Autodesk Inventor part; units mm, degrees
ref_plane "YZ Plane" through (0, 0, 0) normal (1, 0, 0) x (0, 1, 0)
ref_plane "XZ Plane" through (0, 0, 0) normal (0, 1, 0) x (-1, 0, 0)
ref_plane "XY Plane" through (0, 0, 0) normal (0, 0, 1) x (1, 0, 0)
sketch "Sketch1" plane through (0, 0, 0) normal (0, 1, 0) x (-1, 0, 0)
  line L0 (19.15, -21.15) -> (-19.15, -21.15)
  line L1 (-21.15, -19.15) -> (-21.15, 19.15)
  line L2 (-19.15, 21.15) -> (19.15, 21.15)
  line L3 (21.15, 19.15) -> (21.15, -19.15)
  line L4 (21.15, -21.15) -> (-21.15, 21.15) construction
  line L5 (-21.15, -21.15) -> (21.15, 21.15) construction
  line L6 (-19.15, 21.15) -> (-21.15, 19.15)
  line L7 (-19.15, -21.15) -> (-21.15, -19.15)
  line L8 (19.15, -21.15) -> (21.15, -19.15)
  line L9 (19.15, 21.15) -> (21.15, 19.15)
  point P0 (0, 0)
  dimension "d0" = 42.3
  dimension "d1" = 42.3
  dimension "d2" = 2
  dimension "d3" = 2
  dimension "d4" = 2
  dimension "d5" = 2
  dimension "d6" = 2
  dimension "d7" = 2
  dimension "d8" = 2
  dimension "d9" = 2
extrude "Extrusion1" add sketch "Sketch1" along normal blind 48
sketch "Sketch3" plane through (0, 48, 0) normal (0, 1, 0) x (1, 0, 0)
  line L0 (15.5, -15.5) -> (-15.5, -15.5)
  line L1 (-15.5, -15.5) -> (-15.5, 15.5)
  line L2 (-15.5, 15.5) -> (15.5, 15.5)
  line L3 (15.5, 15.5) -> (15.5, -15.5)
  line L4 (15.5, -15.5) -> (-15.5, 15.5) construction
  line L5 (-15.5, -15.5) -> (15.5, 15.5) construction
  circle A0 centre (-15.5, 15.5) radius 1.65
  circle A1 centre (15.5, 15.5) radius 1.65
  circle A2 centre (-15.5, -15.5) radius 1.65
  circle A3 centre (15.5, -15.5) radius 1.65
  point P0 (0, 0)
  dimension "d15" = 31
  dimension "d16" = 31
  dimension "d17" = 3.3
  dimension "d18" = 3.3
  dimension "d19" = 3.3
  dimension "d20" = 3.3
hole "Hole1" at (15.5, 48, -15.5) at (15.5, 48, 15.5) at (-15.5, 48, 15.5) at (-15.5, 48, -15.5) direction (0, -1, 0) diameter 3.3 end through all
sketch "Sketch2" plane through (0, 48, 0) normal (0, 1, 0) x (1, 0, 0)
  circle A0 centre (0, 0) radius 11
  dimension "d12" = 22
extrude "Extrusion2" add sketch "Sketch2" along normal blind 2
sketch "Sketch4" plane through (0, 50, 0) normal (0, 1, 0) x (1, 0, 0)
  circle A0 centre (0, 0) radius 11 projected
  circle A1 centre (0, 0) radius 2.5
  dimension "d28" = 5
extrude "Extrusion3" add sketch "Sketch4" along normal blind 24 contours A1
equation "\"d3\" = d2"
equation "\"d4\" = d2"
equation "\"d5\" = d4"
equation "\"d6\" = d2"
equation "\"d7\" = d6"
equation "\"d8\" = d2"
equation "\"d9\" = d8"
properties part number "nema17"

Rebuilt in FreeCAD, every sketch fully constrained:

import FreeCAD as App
import Part
import Sketcher
Q = App.Units.Quantity

doc = App.newDocument("Part")
params = doc.addObject("Spreadsheet::Sheet", "Params")
for row, (alias, value) in enumerate([
    ("pad1_length", "48 mm"),
    ("sketch2_diameter", "3.3 mm"),
    ("hole_diameter", "3.3 mm"),
    ("sketch3_diameter", "22 mm"),
    ("pad2_length", "2 mm"),
    ("sketch4_diameter", "5 mm"),
    ("pad3_length", "24 mm"),
], start=1):
    params.set(f"A{row}", alias)
    params.set(f"B{row}", "=" + value)
    params.setAlias(f"B{row}", alias)

body = doc.addObject("PartDesign::Body", "Body")

sketch1 = doc.addObject("Sketcher::SketchObject", "Sketch")
body.addObject(sketch1)
sketch1.AttachmentSupport = (doc.XZ_Plane, [""])
sketch1.MapMode = "FlatFace"
sketch1.addGeometry([
    Part.LineSegment(App.Vector(19.1, -21.1, 0), App.Vector(-19.1, -21.1, 0)),
    Part.LineSegment(App.Vector(-19.1, -21.1, 0), App.Vector(-21.1, -19.1, 0)),
    Part.LineSegment(App.Vector(-21.1, -19.1, 0), App.Vector(-21.1, 19.1, 0)),
    Part.LineSegment(App.Vector(-21.1, 19.1, 0), App.Vector(-19.1, 21.1, 0)),
    Part.LineSegment(App.Vector(-19.1, 21.1, 0), App.Vector(19.1, 21.1, 0)),
    Part.LineSegment(App.Vector(19.1, 21.1, 0), App.Vector(21.1, 19.1, 0)),
    Part.LineSegment(App.Vector(21.1, 19.1, 0), App.Vector(21.1, -19.1, 0)),
    Part.LineSegment(App.Vector(21.1, -19.1, 0), App.Vector(19.1, -21.1, 0)),
], False)
sketch1.addConstraint([
    Sketcher.Constraint("Coincident", 0, 2, 1, 1),
    Sketcher.Constraint("Coincident", 1, 2, 2, 1),
    Sketcher.Constraint("Coincident", 2, 2, 3, 1),
    Sketcher.Constraint("Coincident", 3, 2, 4, 1),
    Sketcher.Constraint("Coincident", 4, 2, 5, 1),
    Sketcher.Constraint("Coincident", 5, 2, 6, 1),
    Sketcher.Constraint("Coincident", 6, 2, 7, 1),
    Sketcher.Constraint("Coincident", 7, 2, 0, 1),
    Sketcher.Constraint("Horizontal", 0),
    Sketcher.Constraint("Vertical", 2),
    Sketcher.Constraint("Horizontal", 4),
    Sketcher.Constraint("Vertical", 6),
    Sketcher.Constraint("Symmetric", 0, 2, 4, 2, -1, 1),
    Sketcher.Constraint("Symmetric", 1, 2, 5, 2, -1, 1),
    Sketcher.Constraint("Perpendicular", 1, 3),
    Sketcher.Constraint("Perpendicular", 5, 7),
    Sketcher.Constraint("Horizontal", 2, 2, 5, 2),
    Sketcher.Constraint("Horizontal", 1, 2, 6, 2),
    Sketcher.Constraint("Vertical", 0, 2, 3, 2),
    Sketcher.Constraint("Equal", 4, 2),
    Sketcher.Constraint("DistanceX", 1, 2, 0, 2, Q("2 mm")),
    Sketcher.Constraint("DistanceY", 0, 2, 3, 2, Q("42.3 mm")),
])
pad1 = doc.addObject("PartDesign::Pad", "Pad")
body.addObject(pad1)
pad1.Profile = sketch1
pad1.setExpression("Length", "Params.pad1_length")
pad1.Reversed = True

sketch2 = doc.addObject("Sketcher::SketchObject", "Sketch001")
body.addObject(sketch2)
sketch2.AttachmentSupport = (doc.XZ_Plane, [""])
sketch2.MapMode = "FlatFace"
sketch2.AttachmentOffset = App.Placement(App.Vector(0, 0, -48), App.Rotation())
sketch2.addGeometry([
    Part.Circle(App.Vector(15.5, -15.5, 0), App.Vector(0, 0, 1), 1.6),
    Part.Circle(App.Vector(15.5, 15.5, 0), App.Vector(0, 0, 1), 1.6),
    Part.Circle(App.Vector(-15.5, 15.5, 0), App.Vector(0, 0, 1), 1.6),
    Part.Circle(App.Vector(-15.5, -15.5, 0), App.Vector(0, 0, 1), 1.6),
], False)
sketch2.addConstraint([
    Sketcher.Constraint("Equal", 0, 1),
    Sketcher.Constraint("Equal", 1, 2),
    Sketcher.Constraint("Equal", 2, 3),
    Sketcher.Constraint("Symmetric", 0, 3, 2, 3, -1, 1),
    Sketcher.Constraint("Symmetric", 1, 3, 3, 3, -1, 1),
    Sketcher.Constraint("Symmetric", 1, 3, 2, 3, -2),
    Sketcher.Constraint("Diameter", 0, Q("3.3 mm")),
    Sketcher.Constraint("DistanceY", 0, 3, 1, 3, Q("31 mm")),
    Sketcher.Constraint("DistanceX", 2, 3, 1, 3, Q("31 mm")),
])
sketch2.setExpression("Constraints[6]", "Params.sketch2_diameter")
doc.recompute()
hole = doc.addObject("PartDesign::Hole", "Hole")
body.addObject(hole)
hole.Profile = sketch2
hole.ThreadType = "None"
hole.setExpression("Diameter", "Params.hole_diameter")
hole.DepthType = "ThroughAll"
hole.Reversed = True

sketch3 = doc.addObject("Sketcher::SketchObject", "Sketch002")
body.addObject(sketch3)
sketch3.AttachmentSupport = (doc.XZ_Plane, [""])
sketch3.MapMode = "FlatFace"
sketch3.AttachmentOffset = App.Placement(App.Vector(0, 0, -48), App.Rotation())
sketch3.addGeometry(Part.Circle(App.Vector(0, 0, 0), App.Vector(0, 0, 1), 11), False)
sketch3.addConstraint([
    Sketcher.Constraint("Coincident", 0, 3, -1, 1),
    Sketcher.Constraint("Diameter", 0, Q("22 mm")),
])
sketch3.setExpression("Constraints[1]", "Params.sketch3_diameter")
pad2 = doc.addObject("PartDesign::Pad", "Pad001")
body.addObject(pad2)
pad2.Profile = sketch3
pad2.setExpression("Length", "Params.pad2_length")
pad2.Reversed = True

sketch4 = doc.addObject("Sketcher::SketchObject", "Sketch003")
body.addObject(sketch4)
sketch4.AttachmentSupport = (doc.XZ_Plane, [""])
sketch4.MapMode = "FlatFace"
sketch4.AttachmentOffset = App.Placement(App.Vector(0, 0, -50), App.Rotation())
sketch4.addGeometry(Part.Circle(App.Vector(0, 0, 0), App.Vector(0, 0, 1), 2.5), False)
sketch4.addConstraint([
    Sketcher.Constraint("Coincident", 0, 3, -1, 1),
    Sketcher.Constraint("Diameter", 0, Q("5 mm")),
])
sketch4.setExpression("Constraints[1]", "Params.sketch4_diameter")
pad3 = doc.addObject("PartDesign::Pad", "Pad002")
body.addObject(pad3)
pad3.Profile = sketch4
pad3.setExpression("Length", "Params.pad3_length")
pad3.Reversed = True

doc.recompute()
